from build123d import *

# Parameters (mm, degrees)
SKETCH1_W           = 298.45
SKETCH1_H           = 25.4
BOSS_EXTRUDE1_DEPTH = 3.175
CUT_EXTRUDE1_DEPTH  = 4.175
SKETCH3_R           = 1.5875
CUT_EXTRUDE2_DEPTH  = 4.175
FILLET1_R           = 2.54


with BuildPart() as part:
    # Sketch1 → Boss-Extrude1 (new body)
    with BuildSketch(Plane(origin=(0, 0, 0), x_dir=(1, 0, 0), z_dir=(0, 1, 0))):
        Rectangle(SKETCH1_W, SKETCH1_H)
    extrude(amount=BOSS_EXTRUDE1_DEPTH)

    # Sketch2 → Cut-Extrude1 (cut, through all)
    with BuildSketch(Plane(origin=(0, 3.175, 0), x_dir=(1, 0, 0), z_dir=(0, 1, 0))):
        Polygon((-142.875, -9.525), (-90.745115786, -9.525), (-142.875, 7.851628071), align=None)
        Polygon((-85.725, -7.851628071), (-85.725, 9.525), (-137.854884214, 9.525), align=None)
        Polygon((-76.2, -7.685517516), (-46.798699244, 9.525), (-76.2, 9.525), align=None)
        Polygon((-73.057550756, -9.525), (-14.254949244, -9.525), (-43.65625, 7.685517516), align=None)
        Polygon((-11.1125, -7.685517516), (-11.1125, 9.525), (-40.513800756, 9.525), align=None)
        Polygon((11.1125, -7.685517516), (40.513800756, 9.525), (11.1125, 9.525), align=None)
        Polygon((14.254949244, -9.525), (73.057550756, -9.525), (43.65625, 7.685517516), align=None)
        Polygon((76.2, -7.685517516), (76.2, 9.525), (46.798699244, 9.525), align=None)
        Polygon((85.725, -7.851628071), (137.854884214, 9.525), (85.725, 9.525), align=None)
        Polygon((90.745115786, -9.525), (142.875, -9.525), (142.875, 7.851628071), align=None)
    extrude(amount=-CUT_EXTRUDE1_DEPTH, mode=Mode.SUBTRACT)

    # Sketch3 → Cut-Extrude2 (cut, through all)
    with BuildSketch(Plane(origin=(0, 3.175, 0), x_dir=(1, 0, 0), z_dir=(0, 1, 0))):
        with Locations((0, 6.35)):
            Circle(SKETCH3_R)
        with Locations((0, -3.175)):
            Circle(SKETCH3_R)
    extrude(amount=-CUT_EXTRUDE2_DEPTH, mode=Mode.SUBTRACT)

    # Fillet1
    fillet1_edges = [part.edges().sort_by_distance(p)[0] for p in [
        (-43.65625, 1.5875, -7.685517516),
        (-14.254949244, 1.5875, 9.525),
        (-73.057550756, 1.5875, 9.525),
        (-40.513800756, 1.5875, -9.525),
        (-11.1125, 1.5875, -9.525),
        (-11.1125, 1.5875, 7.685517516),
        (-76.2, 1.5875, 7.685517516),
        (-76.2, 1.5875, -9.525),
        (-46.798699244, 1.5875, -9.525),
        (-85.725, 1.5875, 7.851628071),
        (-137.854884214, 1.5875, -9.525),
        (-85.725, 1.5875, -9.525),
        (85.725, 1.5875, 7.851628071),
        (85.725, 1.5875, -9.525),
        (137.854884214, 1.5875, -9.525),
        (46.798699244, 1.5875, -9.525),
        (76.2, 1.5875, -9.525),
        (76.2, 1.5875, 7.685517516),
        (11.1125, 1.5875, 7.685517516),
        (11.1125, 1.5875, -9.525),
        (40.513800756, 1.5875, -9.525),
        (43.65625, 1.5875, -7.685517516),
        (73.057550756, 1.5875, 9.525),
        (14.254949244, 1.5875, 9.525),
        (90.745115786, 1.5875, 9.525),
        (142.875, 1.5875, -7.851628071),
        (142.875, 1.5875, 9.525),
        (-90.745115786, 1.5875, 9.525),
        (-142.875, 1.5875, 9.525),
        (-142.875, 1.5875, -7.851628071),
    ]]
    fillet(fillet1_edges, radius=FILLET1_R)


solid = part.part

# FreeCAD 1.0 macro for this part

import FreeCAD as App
import Part
import Sketcher

V = App.Vector
Q = App.Units.Quantity


def edges_at(feature, points):
    """Names of the edges that pass closest to the given points."""
    edges = feature.Shape.Edges
    near = lambda p: min(range(len(edges)), key=lambda i: edges[i].distToShape(Part.Vertex(*p))[0])
    return sorted({f"Edge{near(p) + 1}" for p in points})


def add_polygon(sketch, points):
    """Adds a closed chain of lines whose ends are joined by coincident constraints."""
    first, n = sketch.GeometryCount, len(points)
    for a, b in zip(points, points[1:] + points[:1]):
        sketch.addGeometry(Part.LineSegment(App.Vector(*a, 0), App.Vector(*b, 0)), False)
    for i in range(n):
        sketch.addConstraint(Sketcher.Constraint("Coincident", first + i, 2, first + (i + 1) % n, 1))

doc = App.newDocument("Part")
body = doc.addObject("PartDesign::Body", "Body")

sketch1 = body.newObject("Sketcher::SketchObject", "Sketch")
sketch1.AttachmentSupport = (doc.getObject("XZ_Plane"), [""])
sketch1.MapMode = "FlatFace"
add_polygon(sketch1, [(-149, -13), (-149, 13), (149, 13), (149, -13)])
sketch1.addConstraint(Sketcher.Constraint("Vertical", 0))
sketch1.addConstraint(Sketcher.Constraint("Horizontal", 1))
sketch1.addConstraint(Sketcher.Constraint("Vertical", 2))
sketch1.addConstraint(Sketcher.Constraint("Horizontal", 3))
sketch1.addConstraint(Sketcher.Constraint("Symmetric", 0, 2, 2, 2, -1, 1))
sketch1.addConstraint(Sketcher.Constraint("DistanceY", 0, 1, 0, 2, Q("1 in")))
sketch1.addConstraint(Sketcher.Constraint("DistanceX", 1, 1, 1, 2, Q("11.75 in")))
pad1 = body.newObject("PartDesign::Pad", "Pad")
pad1.Profile = sketch1
pad1.Length = Q("0.125 in")
pad1.Reversed = True

sketch2 = body.newObject("Sketcher::SketchObject", "Sketch001")
sketch2.AttachmentSupport = (doc.getObject("XZ_Plane"), [""])
sketch2.MapMode = "FlatFace"
sketch2.AttachmentOffset = App.Placement(V(0, 0, -0.125 * 25.4), App.Rotation())
add_polygon(sketch2, [(-143, 10), (-91, 10), (-143, -8)])
add_polygon(sketch2, [(-86, 8), (-86, -10), (-138, -10)])
add_polygon(sketch2, [(-76, 8), (-47, -10), (-76, -10)])
add_polygon(sketch2, [(-73, 10), (-14, 10), (-44, -8)])
add_polygon(sketch2, [(-11, 8), (-11, -10), (-41, -10)])
add_polygon(sketch2, [(11, 8), (41, -10), (11, -10)])
add_polygon(sketch2, [(14, 10), (73, 10), (44, -8)])
add_polygon(sketch2, [(76, 8), (76, -10), (47, -10)])
add_polygon(sketch2, [(86, 8), (138, -10), (86, -10)])
add_polygon(sketch2, [(91, 10), (143, 10), (143, -8)])
sketch2.addConstraint(Sketcher.Constraint("Horizontal", 0))
sketch2.addConstraint(Sketcher.Constraint("Vertical", 2))
sketch2.addConstraint(Sketcher.Constraint("Vertical", 3))
sketch2.addConstraint(Sketcher.Constraint("Horizontal", 4))
sketch2.addConstraint(Sketcher.Constraint("Horizontal", 7))
sketch2.addConstraint(Sketcher.Constraint("Vertical", 8))
sketch2.addConstraint(Sketcher.Constraint("Horizontal", 9))
sketch2.addConstraint(Sketcher.Constraint("Vertical", 12))
sketch2.addConstraint(Sketcher.Constraint("Horizontal", 13))
sketch2.addConstraint(Sketcher.Constraint("Horizontal", 16))
sketch2.addConstraint(Sketcher.Constraint("Vertical", 17))
sketch2.addConstraint(Sketcher.Constraint("Horizontal", 18))
sketch2.addConstraint(Sketcher.Constraint("Vertical", 21))
sketch2.addConstraint(Sketcher.Constraint("Horizontal", 22))
sketch2.addConstraint(Sketcher.Constraint("Horizontal", 25))
sketch2.addConstraint(Sketcher.Constraint("Vertical", 26))
sketch2.addConstraint(Sketcher.Constraint("Horizontal", 27))
sketch2.addConstraint(Sketcher.Constraint("Vertical", 28))
sketch2.addConstraint(Sketcher.Constraint("Symmetric", 13, 2, 15, 2, -2))
sketch2.addConstraint(Sketcher.Constraint("Symmetric", 14, 2, 17, 2, -2))
sketch2.addConstraint(Sketcher.Constraint("Symmetric", 11, 2, 18, 2, -2))
sketch2.addConstraint(Sketcher.Constraint("Symmetric", 10, 2, 19, 2, -2))
sketch2.addConstraint(Sketcher.Constraint("Symmetric", 7, 2, 21, 2, -2))
sketch2.addConstraint(Sketcher.Constraint("Symmetric", 4, 2, 24, 2, -2))
sketch2.addConstraint(Sketcher.Constraint("Symmetric", 5, 2, 26, 2, -2))
sketch2.addConstraint(Sketcher.Constraint("Symmetric", 2, 2, 27, 2, -2))
sketch2.addConstraint(Sketcher.Constraint("Parallel", 1, 5))
sketch2.addConstraint(Sketcher.Constraint("Parallel", 6, 11))
sketch2.addConstraint(Sketcher.Constraint("Parallel", 10, 14))
sketch2.addConstraint(Sketcher.Constraint("Parallel", 11, 15))
sketch2.addConstraint(Sketcher.Constraint("Parallel", 15, 20))
sketch2.addConstraint(Sketcher.Constraint("Parallel", 19, 23))
sketch2.addConstraint(Sketcher.Constraint("Parallel", 24, 29))
sketch2.addConstraint(Sketcher.Constraint("Horizontal", 4, 2, 6, 2))
sketch2.addConstraint(Sketcher.Constraint("Horizontal", 2, 2, 9, 2))
sketch2.addConstraint(Sketcher.Constraint("Horizontal", 7, 2, 12, 2))
sketch2.addConstraint(Sketcher.Constraint("Horizontal", 8, 2, 14, 2))
sketch2.addConstraint(Sketcher.Constraint("Horizontal", 17, 2, 23, 2))
sketch2.addConstraint(Sketcher.Constraint("Horizontal", 1, 2, 28, 2))
sketch2.addConstraint(Sketcher.Constraint("Equal", 0, 4))
sketch2.addConstraint(Sketcher.Constraint("Equal", 6, 10))
sketch2.addConstraint(Sketcher.Constraint("DistanceX", 7, 2, -1, 1, Q("3 in")))
sketch2.addConstraint(Sketcher.Constraint("DistanceY", 3, 2, 0, 2, Q("0.75 in")))
sketch2.addConstraint(Sketcher.Constraint("DistanceX", 1, 2, 3, 2, Q("2.25 in")))
sketch2.addConstraint(Sketcher.Constraint("DistanceY", -1, 1, 0, 2, Q("0.375 in")))
sketch2.addConstraint(Sketcher.Constraint("DistanceX", 1, 2, -1, 1, Q("5.625 in")))
sketch2.addConstraint(Sketcher.Constraint("DistanceX", 10, 2, -1, 1, Q("1.71875 in")))
sketch2.addConstraint(Sketcher.Constraint("DistanceX", 12, 2, -1, 1, Q("0.4375 in")))
sketch2.addConstraint(Sketcher.Constraint("DistanceX", 7, 2, 7, 1, 29.401301))
sketch2.addConstraint(Sketcher.Constraint("DistanceY", 2, 1, 2, 2, 17.376628))
sketch2.addConstraint(Sketcher.Constraint("DistanceX", 0, 1, 0, 2, 52.129884))
sketch2.addConstraint(Sketcher.Constraint("DistanceY", 8, 1, 8, 2, 17.210518))
pocket1 = body.newObject("PartDesign::Pocket", "Pocket")
pocket1.Profile = sketch2
pocket1.Type = "ThroughAll"
pocket1.Reversed = True

sketch3 = body.newObject("Sketcher::SketchObject", "Sketch002")
sketch3.AttachmentSupport = (doc.getObject("XZ_Plane"), [""])
sketch3.MapMode = "FlatFace"
sketch3.AttachmentOffset = App.Placement(V(0, 0, -0.125 * 25.4), App.Rotation())
sketch3.addGeometry(Part.Circle(V(0, -6.3, 0), V(0, 0, 1), 1.6), False)
sketch3.addGeometry(Part.Circle(V(0, 3.2, 0), V(0, 0, 1), 1.6), False)
sketch3.addConstraint(Sketcher.Constraint("Equal", 0, 1))
sketch3.addConstraint(Sketcher.Constraint("PointOnObject", 0, 3, -2))
sketch3.addConstraint(Sketcher.Constraint("PointOnObject", 1, 3, -2))
sketch3.addConstraint(Sketcher.Constraint("Diameter", 0, Q("0.125 in")))
sketch3.addConstraint(Sketcher.Constraint("DistanceY", 0, 3, -1, 1, Q("0.25 in")))
sketch3.addConstraint(Sketcher.Constraint("DistanceY", -1, 1, 1, 3, Q("0.125 in")))
pocket2 = body.newObject("PartDesign::Pocket", "Pocket001")
pocket2.Profile = sketch3
pocket2.Type = "ThroughAll"
pocket2.Reversed = True
doc.recompute()

fillet = body.newObject("PartDesign::Fillet", "Fillet")
fillet.Base = (pocket2, edges_at(pocket2, [
    (-43.656, 1.587, -7.686),
    (-14.255, 1.587, 9.525),
    (-73.058, 1.587, 9.525),
    (-40.514, 1.587, -9.525),
    (-11.113, 1.587, -9.525),
    (-11.113, 1.587, 7.686),
    (-76.2, 1.587, 7.686),
    (-76.2, 1.587, -9.525),
    (-46.799, 1.587, -9.525),
    (-85.725, 1.587, 7.852),
    (-137.855, 1.587, -9.525),
    (-85.725, 1.587, -9.525),
    (85.725, 1.587, 7.852),
    (85.725, 1.587, -9.525),
    (137.855, 1.587, -9.525),
    (46.799, 1.587, -9.525),
    (76.2, 1.587, -9.525),
    (76.2, 1.587, 7.686),
    (11.113, 1.587, 7.686),
    (11.113, 1.587, -9.525),
    (40.514, 1.587, -9.525),
    (43.656, 1.587, -7.686),
    (73.058, 1.587, 9.525),
    (14.255, 1.587, 9.525),
    (90.745, 1.587, 9.525),
    (142.875, 1.587, -7.852),
    (142.875, 1.587, 9.525),
    (-90.745, 1.587, 9.525),
    (-142.875, 1.587, 9.525),
    (-142.875, 1.587, -7.852),
]))
fillet.Radius = Q("0.1 in")

doc.recompute()
